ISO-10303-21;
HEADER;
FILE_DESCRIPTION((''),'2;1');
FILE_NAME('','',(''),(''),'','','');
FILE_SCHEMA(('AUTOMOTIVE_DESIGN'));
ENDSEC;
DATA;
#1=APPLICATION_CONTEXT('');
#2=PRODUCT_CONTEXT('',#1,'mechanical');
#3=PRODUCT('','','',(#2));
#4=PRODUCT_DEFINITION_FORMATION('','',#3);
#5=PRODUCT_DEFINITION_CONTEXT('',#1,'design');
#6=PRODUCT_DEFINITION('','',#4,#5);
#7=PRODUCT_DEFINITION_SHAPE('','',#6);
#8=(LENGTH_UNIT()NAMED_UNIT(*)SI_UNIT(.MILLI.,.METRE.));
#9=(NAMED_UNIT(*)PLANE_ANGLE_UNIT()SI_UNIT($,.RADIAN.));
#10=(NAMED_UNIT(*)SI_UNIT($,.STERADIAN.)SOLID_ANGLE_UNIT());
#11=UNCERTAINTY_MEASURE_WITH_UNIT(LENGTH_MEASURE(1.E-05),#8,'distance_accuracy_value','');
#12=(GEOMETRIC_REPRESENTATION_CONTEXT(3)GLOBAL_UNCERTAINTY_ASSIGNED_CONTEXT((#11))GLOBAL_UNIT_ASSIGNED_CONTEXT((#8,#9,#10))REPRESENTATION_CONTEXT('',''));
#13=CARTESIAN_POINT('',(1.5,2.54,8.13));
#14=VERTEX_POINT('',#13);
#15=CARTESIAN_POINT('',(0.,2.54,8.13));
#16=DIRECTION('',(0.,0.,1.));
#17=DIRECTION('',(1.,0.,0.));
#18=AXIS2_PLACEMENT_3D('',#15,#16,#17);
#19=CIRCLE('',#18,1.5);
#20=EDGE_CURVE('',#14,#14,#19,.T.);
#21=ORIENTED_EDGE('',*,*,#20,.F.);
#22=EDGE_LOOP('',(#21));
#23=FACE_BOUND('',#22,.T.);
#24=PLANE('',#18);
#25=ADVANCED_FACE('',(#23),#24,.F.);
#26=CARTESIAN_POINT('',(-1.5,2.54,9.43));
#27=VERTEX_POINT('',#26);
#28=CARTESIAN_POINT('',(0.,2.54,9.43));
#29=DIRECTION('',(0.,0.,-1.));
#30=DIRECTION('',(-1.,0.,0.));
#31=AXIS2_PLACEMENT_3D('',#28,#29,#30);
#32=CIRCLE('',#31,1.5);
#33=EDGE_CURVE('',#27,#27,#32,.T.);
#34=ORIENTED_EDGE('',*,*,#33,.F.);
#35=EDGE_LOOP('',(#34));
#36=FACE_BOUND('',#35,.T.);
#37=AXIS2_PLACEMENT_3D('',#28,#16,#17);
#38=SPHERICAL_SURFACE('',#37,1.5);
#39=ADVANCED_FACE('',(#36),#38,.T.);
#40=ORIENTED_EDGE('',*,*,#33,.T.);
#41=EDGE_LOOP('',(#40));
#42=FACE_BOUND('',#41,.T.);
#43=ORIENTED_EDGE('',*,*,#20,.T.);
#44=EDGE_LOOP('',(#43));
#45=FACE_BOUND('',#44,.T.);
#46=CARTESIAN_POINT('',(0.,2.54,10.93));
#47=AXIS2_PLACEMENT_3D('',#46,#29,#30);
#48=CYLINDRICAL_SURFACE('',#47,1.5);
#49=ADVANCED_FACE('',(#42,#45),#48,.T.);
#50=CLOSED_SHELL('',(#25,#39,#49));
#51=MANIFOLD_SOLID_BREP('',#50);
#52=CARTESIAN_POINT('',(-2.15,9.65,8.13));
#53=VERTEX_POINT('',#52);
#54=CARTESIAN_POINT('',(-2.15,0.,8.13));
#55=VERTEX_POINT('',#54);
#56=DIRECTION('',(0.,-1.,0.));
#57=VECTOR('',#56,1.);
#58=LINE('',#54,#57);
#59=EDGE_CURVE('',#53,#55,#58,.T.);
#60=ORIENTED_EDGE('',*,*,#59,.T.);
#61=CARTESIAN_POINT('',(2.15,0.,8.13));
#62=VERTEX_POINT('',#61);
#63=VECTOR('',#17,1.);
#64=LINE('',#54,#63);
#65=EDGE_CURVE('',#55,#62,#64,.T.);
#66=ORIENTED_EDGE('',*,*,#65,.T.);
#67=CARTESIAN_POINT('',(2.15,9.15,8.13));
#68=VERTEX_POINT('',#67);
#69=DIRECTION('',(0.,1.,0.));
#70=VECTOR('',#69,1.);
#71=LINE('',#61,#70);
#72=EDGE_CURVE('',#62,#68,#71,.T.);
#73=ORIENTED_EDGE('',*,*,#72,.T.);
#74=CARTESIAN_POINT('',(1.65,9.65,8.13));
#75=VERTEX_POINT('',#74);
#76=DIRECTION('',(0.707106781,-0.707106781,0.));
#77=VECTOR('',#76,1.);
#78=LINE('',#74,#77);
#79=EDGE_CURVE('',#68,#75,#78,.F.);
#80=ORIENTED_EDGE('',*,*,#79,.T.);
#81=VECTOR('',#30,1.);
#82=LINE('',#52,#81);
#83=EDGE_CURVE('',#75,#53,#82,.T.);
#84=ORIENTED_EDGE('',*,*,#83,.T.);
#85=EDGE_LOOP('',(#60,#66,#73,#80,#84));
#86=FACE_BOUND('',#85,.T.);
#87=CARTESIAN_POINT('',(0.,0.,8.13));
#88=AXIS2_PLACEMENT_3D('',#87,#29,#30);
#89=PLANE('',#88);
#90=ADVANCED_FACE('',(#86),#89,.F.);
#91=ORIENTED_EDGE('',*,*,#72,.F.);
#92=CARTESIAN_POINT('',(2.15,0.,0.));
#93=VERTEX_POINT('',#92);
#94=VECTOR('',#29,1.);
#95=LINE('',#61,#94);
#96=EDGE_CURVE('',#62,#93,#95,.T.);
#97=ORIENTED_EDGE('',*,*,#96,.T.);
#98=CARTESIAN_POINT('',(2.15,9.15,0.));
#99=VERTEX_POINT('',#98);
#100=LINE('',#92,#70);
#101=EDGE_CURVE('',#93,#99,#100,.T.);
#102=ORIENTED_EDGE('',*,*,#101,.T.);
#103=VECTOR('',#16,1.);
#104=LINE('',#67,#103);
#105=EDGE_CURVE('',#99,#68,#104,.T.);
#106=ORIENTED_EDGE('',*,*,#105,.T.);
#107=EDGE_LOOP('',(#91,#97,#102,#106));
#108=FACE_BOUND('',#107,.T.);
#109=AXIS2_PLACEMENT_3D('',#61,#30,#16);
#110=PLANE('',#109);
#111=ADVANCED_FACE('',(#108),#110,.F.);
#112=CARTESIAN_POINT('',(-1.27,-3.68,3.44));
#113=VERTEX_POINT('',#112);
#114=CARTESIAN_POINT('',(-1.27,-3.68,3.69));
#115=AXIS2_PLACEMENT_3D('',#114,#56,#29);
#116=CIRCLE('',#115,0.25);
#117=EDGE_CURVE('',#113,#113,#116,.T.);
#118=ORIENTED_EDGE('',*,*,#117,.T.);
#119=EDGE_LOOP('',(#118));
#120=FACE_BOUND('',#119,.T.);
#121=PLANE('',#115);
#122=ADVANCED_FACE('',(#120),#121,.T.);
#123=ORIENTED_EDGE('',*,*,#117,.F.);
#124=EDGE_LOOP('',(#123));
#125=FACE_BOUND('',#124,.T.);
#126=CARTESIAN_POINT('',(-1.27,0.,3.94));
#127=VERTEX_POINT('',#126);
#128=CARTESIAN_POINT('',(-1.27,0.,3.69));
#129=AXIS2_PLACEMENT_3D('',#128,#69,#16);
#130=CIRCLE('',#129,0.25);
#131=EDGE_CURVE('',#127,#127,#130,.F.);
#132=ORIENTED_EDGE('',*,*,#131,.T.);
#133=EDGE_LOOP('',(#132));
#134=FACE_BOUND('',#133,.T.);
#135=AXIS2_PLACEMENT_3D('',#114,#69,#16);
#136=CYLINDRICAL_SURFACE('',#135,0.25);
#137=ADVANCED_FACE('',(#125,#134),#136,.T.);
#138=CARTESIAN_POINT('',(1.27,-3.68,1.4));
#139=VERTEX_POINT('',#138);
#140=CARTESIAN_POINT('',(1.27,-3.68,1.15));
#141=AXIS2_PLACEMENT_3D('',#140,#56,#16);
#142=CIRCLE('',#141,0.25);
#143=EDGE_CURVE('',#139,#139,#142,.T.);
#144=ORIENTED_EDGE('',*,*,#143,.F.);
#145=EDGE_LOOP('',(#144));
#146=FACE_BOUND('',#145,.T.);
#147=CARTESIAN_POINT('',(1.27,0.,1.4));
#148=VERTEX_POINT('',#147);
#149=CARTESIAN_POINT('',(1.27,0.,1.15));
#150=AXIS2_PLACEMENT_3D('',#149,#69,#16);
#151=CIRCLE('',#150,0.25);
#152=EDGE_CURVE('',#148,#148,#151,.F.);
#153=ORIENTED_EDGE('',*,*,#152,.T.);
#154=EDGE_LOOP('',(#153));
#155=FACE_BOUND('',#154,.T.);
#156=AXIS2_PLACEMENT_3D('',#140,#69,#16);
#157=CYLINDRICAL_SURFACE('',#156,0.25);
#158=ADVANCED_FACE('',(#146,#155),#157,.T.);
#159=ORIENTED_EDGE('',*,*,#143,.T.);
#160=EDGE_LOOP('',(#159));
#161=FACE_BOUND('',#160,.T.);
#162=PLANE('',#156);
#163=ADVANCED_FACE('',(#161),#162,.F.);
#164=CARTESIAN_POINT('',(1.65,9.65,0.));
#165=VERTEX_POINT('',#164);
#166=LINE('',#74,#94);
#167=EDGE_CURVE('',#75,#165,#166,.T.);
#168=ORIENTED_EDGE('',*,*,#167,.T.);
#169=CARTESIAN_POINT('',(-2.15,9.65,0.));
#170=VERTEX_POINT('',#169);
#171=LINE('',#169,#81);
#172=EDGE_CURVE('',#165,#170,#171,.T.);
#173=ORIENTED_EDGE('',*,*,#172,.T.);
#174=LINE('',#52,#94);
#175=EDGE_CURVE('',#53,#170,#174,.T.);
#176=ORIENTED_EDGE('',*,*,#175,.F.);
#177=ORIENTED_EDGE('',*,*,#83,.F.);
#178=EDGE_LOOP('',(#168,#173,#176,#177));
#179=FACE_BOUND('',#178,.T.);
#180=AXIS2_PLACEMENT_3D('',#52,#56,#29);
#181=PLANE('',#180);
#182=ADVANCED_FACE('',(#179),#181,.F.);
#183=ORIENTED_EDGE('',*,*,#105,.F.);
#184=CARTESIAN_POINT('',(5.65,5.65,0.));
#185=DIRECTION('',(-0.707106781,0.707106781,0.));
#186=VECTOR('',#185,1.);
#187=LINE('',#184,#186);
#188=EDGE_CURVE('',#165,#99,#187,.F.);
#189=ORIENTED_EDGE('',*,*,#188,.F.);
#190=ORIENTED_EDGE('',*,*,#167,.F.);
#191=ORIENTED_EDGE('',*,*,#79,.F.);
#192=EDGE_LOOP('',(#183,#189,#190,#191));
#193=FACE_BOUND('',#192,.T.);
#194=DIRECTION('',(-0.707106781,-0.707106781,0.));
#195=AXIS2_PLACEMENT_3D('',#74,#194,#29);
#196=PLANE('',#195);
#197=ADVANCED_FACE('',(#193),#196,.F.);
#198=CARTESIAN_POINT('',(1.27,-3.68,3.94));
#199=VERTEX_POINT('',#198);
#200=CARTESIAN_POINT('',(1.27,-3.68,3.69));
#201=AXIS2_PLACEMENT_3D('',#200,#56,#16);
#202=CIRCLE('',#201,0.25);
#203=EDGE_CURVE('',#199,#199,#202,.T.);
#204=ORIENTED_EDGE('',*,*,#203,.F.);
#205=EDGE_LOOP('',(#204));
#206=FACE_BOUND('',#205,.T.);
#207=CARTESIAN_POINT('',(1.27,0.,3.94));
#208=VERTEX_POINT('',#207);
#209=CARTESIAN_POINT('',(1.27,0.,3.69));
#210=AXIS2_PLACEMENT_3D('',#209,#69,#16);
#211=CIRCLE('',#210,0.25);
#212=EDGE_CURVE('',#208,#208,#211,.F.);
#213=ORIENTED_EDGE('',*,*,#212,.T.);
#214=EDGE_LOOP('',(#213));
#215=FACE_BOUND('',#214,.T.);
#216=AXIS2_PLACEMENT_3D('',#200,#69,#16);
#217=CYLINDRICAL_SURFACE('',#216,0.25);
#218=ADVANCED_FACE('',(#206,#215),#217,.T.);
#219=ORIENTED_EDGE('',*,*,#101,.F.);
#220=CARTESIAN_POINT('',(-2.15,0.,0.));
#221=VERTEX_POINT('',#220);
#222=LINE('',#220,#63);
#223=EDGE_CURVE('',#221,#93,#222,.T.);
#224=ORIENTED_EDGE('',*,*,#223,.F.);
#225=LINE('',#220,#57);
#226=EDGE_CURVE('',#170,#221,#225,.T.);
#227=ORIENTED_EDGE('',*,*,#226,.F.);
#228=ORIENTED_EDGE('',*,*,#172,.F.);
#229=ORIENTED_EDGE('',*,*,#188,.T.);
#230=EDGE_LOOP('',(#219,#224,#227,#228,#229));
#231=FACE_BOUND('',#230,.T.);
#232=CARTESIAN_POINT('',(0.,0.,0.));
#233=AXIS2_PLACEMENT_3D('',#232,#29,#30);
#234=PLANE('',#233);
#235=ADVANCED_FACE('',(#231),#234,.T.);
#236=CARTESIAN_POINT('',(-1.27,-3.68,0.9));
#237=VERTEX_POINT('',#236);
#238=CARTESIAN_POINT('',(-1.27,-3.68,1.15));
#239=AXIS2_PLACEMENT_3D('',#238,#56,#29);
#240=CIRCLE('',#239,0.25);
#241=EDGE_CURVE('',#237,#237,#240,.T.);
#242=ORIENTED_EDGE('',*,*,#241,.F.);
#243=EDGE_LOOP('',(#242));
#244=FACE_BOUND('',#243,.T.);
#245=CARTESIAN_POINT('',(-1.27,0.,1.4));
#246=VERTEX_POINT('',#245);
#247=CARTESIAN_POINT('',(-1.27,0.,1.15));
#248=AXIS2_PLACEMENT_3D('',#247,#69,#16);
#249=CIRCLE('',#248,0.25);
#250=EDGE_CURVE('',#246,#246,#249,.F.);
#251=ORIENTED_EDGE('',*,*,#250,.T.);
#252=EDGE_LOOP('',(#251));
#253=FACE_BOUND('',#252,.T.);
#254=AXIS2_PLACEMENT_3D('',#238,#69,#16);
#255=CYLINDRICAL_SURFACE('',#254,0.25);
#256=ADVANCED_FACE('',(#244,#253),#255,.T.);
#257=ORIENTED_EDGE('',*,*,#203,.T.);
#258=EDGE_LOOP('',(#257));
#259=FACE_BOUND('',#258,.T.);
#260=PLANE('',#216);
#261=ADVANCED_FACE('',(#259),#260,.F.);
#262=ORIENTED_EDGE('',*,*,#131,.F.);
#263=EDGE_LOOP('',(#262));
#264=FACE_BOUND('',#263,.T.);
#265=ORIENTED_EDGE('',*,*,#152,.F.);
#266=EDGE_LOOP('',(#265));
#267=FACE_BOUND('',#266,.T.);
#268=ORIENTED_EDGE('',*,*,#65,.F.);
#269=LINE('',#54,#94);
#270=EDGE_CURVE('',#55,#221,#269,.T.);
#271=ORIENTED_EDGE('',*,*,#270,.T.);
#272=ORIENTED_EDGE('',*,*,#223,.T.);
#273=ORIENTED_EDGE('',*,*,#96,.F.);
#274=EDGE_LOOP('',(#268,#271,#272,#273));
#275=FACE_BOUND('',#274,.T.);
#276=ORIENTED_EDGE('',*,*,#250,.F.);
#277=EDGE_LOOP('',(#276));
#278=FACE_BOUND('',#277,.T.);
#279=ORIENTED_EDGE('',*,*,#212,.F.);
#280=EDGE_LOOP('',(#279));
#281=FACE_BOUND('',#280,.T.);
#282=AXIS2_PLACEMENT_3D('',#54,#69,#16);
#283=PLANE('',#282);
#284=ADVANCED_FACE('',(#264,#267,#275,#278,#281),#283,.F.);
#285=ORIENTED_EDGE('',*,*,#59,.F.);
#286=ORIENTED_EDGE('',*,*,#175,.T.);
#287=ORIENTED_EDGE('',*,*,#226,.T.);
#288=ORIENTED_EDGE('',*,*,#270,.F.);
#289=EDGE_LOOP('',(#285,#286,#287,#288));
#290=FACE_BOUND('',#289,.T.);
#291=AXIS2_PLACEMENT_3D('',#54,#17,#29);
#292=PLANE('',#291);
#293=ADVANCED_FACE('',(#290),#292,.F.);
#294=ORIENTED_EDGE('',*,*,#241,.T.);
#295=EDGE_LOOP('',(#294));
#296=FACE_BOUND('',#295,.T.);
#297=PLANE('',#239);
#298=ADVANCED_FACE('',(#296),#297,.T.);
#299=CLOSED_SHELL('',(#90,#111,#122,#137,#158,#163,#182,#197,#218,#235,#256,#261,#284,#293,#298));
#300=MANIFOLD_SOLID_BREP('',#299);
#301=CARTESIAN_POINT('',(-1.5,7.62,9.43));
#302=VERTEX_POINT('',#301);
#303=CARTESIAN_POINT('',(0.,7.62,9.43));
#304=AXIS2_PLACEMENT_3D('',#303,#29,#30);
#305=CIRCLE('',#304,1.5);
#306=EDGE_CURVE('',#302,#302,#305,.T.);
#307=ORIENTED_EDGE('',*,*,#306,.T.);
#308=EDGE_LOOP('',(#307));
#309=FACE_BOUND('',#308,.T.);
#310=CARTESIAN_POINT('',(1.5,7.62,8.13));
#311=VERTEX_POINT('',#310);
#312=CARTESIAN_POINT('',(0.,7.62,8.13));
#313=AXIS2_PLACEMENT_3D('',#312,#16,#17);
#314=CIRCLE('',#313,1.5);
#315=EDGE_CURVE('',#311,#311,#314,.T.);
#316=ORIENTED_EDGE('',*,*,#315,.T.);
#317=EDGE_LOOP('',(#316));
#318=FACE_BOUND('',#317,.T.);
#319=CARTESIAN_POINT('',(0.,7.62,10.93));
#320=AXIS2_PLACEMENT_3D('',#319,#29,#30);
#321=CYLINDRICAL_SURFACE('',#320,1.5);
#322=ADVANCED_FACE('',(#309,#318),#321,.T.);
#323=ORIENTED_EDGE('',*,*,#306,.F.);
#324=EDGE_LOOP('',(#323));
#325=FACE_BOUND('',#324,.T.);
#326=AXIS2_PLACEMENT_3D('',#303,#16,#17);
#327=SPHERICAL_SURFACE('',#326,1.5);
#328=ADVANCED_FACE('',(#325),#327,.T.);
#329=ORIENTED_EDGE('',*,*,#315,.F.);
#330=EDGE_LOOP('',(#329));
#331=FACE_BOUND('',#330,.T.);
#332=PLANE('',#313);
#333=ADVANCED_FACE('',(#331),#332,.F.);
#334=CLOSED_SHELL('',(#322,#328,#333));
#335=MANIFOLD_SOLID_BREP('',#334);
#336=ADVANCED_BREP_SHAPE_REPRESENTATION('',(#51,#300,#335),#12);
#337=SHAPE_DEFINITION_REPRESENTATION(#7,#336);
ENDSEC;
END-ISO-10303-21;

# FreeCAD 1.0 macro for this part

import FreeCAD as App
import Part
import Sketcher
from FreeCAD import Vector
Q = App.Units.Quantity


def edges_at(feature, points):
    """Names of the edges that pass closest to the given points."""
    edges = feature.Shape.Edges
    near = lambda p: min(range(len(edges)), key=lambda i: edges[i].distToShape(Part.Vertex(*p))[0])
    return sorted({f"Edge{near(p) + 1}" for p in points})

doc = App.newDocument("Part")
body = doc.addObject("PartDesign::Body", "Body")

sketch1 = body.newObject("Sketcher::SketchObject", "Sketch")
sketch1.AttachmentSupport = (doc.getObject("XY_Plane"), [""])
sketch1.MapMode = "FlatFace"
sketch1.addGeometry([
    Part.LineSegment(Vector(-2.1, 9.7, 0), Vector(-2.1, 0, 0)),
    Part.LineSegment(Vector(-2.1, 0, 0), Vector(2.1, 0, 0)),
    Part.LineSegment(Vector(2.1, 0, 0), Vector(2.1, 9.7, 0)),
    Part.LineSegment(Vector(2.1, 9.7, 0), Vector(-2.1, 9.7, 0)),
], False)
sketch1.addConstraint([
    Sketcher.Constraint("Coincident", 0, 2, 1, 1),
    Sketcher.Constraint("Coincident", 1, 2, 2, 1),
    Sketcher.Constraint("Coincident", 2, 2, 3, 1),
    Sketcher.Constraint("Coincident", 3, 2, 0, 1),
    Sketcher.Constraint("Vertical", 0),
    Sketcher.Constraint("Horizontal", 1),
    Sketcher.Constraint("Vertical", 2),
    Sketcher.Constraint("Horizontal", 3),
    Sketcher.Constraint("Symmetric", 0, 2, 1, 2, -1, 1),
    Sketcher.Constraint("DistanceX", 1, 1, 1, 2, Q("4.3 mm")),
    Sketcher.Constraint("DistanceY", 0, 2, 0, 1, Q("9.65 mm")),
])
pad1 = body.newObject("PartDesign::Pad", "Pad")
pad1.Profile = sketch1
pad1.Length = 8.13
doc.recompute()

chamfer = body.newObject("PartDesign::Chamfer", "Chamfer")
chamfer.Base = (pad1, edges_at(pad1, [(2.15, 9.65, 4.065)]))
chamfer.Size = 0.5

sketch2 = body.newObject("Sketcher::SketchObject", "Sketch001")
sketch2.AttachmentSupport = (doc.getObject("XZ_Plane"), [""])
sketch2.MapMode = "FlatFace"
sketch2.addGeometry([
    Part.Circle(Vector(-1.27, 3.69, 0), Vector(0, 0, 1), 0.25),
    Part.Circle(Vector(1.27, 3.69, 0), Vector(0, 0, 1), 0.25),
    Part.Circle(Vector(-1.27, 1.15, 0), Vector(0, 0, 1), 0.25),
    Part.Circle(Vector(1.27, 1.15, 0), Vector(0, 0, 1), 0.25),
], False)
sketch2.addConstraint([
    Sketcher.Constraint("Equal", 0, 1),
    Sketcher.Constraint("Equal", 1, 2),
    Sketcher.Constraint("Equal", 2, 3),
    Sketcher.Constraint("Symmetric", 0, 3, 1, 3, -2),
    Sketcher.Constraint("Symmetric", 2, 3, 3, 3, -2),
    Sketcher.Constraint("Vertical", 0, 3, 2, 3),
    Sketcher.Constraint("Diameter", 0, Q("0.5 mm")),
    Sketcher.Constraint("DistanceX", 0, 3, -1, 1, Q("1.27 mm")),
    Sketcher.Constraint("DistanceY", -1, 1, 0, 3, Q("3.69 mm")),
    Sketcher.Constraint("DistanceY", -1, 1, 2, 3, Q("1.15 mm")),
])
pad2 = body.newObject("PartDesign::Pad", "Pad001")
pad2.Profile = sketch2
pad2.Length = 3.68
body2 = doc.addObject("PartDesign::Body", "Body001")

sketch3 = body2.newObject("Sketcher::SketchObject", "Sketch002")
sketch3.AttachmentSupport = (doc.getObject("XY_Plane001"), [""])
sketch3.MapMode = "FlatFace"
sketch3.AttachmentOffset = App.Placement(Vector(0, 0, 8.13), App.Rotation())
sketch3.addGeometry(Part.Circle(Vector(0, 7.6, 0), Vector(0, 0, 1), 1.5), False)
sketch3.addConstraint([
    Sketcher.Constraint("PointOnObject", 0, 3, -2),
    Sketcher.Constraint("Diameter", 0, Q("3 mm")),
    Sketcher.Constraint("DistanceY", -1, 1, 0, 3, Q("7.62 mm")),
])
pad3 = body2.newObject("PartDesign::Pad", "Pad002")
pad3.Profile = sketch3
pad3.Length = 2.8
doc.recompute()

fillet = body2.newObject("PartDesign::Fillet", "Fillet")
fillet.Base = (pad3, edges_at(pad3, [(-1.5, 7.62, 10.93)]))
fillet.Radius = 1.5
body3 = doc.addObject("PartDesign::Body", "Body002")

sketch4 = body3.newObject("Sketcher::SketchObject", "Sketch003")
sketch4.AttachmentSupport = (doc.getObject("XY_Plane002"), [""])
sketch4.MapMode = "FlatFace"
sketch4.AttachmentOffset = App.Placement(Vector(0, 0, 8.13), App.Rotation())
sketch4.addGeometry(Part.Circle(Vector(0, 2.5, 0), Vector(0, 0, 1), 1.5), False)
sketch4.addConstraint([
    Sketcher.Constraint("PointOnObject", 0, 3, -2),
    Sketcher.Constraint("Diameter", 0, Q("3 mm")),
    Sketcher.Constraint("DistanceY", -1, 1, 0, 3, Q("2.54 mm")),
])
pad4 = body3.newObject("PartDesign::Pad", "Pad003")
pad4.Profile = sketch4
pad4.Length = 2.8
doc.recompute()

fillet2 = body3.newObject("PartDesign::Fillet", "Fillet001")
fillet2.Base = (pad4, edges_at(pad4, [(-1.5, 2.54, 10.93)]))
fillet2.Radius = 1.5

doc.recompute()
